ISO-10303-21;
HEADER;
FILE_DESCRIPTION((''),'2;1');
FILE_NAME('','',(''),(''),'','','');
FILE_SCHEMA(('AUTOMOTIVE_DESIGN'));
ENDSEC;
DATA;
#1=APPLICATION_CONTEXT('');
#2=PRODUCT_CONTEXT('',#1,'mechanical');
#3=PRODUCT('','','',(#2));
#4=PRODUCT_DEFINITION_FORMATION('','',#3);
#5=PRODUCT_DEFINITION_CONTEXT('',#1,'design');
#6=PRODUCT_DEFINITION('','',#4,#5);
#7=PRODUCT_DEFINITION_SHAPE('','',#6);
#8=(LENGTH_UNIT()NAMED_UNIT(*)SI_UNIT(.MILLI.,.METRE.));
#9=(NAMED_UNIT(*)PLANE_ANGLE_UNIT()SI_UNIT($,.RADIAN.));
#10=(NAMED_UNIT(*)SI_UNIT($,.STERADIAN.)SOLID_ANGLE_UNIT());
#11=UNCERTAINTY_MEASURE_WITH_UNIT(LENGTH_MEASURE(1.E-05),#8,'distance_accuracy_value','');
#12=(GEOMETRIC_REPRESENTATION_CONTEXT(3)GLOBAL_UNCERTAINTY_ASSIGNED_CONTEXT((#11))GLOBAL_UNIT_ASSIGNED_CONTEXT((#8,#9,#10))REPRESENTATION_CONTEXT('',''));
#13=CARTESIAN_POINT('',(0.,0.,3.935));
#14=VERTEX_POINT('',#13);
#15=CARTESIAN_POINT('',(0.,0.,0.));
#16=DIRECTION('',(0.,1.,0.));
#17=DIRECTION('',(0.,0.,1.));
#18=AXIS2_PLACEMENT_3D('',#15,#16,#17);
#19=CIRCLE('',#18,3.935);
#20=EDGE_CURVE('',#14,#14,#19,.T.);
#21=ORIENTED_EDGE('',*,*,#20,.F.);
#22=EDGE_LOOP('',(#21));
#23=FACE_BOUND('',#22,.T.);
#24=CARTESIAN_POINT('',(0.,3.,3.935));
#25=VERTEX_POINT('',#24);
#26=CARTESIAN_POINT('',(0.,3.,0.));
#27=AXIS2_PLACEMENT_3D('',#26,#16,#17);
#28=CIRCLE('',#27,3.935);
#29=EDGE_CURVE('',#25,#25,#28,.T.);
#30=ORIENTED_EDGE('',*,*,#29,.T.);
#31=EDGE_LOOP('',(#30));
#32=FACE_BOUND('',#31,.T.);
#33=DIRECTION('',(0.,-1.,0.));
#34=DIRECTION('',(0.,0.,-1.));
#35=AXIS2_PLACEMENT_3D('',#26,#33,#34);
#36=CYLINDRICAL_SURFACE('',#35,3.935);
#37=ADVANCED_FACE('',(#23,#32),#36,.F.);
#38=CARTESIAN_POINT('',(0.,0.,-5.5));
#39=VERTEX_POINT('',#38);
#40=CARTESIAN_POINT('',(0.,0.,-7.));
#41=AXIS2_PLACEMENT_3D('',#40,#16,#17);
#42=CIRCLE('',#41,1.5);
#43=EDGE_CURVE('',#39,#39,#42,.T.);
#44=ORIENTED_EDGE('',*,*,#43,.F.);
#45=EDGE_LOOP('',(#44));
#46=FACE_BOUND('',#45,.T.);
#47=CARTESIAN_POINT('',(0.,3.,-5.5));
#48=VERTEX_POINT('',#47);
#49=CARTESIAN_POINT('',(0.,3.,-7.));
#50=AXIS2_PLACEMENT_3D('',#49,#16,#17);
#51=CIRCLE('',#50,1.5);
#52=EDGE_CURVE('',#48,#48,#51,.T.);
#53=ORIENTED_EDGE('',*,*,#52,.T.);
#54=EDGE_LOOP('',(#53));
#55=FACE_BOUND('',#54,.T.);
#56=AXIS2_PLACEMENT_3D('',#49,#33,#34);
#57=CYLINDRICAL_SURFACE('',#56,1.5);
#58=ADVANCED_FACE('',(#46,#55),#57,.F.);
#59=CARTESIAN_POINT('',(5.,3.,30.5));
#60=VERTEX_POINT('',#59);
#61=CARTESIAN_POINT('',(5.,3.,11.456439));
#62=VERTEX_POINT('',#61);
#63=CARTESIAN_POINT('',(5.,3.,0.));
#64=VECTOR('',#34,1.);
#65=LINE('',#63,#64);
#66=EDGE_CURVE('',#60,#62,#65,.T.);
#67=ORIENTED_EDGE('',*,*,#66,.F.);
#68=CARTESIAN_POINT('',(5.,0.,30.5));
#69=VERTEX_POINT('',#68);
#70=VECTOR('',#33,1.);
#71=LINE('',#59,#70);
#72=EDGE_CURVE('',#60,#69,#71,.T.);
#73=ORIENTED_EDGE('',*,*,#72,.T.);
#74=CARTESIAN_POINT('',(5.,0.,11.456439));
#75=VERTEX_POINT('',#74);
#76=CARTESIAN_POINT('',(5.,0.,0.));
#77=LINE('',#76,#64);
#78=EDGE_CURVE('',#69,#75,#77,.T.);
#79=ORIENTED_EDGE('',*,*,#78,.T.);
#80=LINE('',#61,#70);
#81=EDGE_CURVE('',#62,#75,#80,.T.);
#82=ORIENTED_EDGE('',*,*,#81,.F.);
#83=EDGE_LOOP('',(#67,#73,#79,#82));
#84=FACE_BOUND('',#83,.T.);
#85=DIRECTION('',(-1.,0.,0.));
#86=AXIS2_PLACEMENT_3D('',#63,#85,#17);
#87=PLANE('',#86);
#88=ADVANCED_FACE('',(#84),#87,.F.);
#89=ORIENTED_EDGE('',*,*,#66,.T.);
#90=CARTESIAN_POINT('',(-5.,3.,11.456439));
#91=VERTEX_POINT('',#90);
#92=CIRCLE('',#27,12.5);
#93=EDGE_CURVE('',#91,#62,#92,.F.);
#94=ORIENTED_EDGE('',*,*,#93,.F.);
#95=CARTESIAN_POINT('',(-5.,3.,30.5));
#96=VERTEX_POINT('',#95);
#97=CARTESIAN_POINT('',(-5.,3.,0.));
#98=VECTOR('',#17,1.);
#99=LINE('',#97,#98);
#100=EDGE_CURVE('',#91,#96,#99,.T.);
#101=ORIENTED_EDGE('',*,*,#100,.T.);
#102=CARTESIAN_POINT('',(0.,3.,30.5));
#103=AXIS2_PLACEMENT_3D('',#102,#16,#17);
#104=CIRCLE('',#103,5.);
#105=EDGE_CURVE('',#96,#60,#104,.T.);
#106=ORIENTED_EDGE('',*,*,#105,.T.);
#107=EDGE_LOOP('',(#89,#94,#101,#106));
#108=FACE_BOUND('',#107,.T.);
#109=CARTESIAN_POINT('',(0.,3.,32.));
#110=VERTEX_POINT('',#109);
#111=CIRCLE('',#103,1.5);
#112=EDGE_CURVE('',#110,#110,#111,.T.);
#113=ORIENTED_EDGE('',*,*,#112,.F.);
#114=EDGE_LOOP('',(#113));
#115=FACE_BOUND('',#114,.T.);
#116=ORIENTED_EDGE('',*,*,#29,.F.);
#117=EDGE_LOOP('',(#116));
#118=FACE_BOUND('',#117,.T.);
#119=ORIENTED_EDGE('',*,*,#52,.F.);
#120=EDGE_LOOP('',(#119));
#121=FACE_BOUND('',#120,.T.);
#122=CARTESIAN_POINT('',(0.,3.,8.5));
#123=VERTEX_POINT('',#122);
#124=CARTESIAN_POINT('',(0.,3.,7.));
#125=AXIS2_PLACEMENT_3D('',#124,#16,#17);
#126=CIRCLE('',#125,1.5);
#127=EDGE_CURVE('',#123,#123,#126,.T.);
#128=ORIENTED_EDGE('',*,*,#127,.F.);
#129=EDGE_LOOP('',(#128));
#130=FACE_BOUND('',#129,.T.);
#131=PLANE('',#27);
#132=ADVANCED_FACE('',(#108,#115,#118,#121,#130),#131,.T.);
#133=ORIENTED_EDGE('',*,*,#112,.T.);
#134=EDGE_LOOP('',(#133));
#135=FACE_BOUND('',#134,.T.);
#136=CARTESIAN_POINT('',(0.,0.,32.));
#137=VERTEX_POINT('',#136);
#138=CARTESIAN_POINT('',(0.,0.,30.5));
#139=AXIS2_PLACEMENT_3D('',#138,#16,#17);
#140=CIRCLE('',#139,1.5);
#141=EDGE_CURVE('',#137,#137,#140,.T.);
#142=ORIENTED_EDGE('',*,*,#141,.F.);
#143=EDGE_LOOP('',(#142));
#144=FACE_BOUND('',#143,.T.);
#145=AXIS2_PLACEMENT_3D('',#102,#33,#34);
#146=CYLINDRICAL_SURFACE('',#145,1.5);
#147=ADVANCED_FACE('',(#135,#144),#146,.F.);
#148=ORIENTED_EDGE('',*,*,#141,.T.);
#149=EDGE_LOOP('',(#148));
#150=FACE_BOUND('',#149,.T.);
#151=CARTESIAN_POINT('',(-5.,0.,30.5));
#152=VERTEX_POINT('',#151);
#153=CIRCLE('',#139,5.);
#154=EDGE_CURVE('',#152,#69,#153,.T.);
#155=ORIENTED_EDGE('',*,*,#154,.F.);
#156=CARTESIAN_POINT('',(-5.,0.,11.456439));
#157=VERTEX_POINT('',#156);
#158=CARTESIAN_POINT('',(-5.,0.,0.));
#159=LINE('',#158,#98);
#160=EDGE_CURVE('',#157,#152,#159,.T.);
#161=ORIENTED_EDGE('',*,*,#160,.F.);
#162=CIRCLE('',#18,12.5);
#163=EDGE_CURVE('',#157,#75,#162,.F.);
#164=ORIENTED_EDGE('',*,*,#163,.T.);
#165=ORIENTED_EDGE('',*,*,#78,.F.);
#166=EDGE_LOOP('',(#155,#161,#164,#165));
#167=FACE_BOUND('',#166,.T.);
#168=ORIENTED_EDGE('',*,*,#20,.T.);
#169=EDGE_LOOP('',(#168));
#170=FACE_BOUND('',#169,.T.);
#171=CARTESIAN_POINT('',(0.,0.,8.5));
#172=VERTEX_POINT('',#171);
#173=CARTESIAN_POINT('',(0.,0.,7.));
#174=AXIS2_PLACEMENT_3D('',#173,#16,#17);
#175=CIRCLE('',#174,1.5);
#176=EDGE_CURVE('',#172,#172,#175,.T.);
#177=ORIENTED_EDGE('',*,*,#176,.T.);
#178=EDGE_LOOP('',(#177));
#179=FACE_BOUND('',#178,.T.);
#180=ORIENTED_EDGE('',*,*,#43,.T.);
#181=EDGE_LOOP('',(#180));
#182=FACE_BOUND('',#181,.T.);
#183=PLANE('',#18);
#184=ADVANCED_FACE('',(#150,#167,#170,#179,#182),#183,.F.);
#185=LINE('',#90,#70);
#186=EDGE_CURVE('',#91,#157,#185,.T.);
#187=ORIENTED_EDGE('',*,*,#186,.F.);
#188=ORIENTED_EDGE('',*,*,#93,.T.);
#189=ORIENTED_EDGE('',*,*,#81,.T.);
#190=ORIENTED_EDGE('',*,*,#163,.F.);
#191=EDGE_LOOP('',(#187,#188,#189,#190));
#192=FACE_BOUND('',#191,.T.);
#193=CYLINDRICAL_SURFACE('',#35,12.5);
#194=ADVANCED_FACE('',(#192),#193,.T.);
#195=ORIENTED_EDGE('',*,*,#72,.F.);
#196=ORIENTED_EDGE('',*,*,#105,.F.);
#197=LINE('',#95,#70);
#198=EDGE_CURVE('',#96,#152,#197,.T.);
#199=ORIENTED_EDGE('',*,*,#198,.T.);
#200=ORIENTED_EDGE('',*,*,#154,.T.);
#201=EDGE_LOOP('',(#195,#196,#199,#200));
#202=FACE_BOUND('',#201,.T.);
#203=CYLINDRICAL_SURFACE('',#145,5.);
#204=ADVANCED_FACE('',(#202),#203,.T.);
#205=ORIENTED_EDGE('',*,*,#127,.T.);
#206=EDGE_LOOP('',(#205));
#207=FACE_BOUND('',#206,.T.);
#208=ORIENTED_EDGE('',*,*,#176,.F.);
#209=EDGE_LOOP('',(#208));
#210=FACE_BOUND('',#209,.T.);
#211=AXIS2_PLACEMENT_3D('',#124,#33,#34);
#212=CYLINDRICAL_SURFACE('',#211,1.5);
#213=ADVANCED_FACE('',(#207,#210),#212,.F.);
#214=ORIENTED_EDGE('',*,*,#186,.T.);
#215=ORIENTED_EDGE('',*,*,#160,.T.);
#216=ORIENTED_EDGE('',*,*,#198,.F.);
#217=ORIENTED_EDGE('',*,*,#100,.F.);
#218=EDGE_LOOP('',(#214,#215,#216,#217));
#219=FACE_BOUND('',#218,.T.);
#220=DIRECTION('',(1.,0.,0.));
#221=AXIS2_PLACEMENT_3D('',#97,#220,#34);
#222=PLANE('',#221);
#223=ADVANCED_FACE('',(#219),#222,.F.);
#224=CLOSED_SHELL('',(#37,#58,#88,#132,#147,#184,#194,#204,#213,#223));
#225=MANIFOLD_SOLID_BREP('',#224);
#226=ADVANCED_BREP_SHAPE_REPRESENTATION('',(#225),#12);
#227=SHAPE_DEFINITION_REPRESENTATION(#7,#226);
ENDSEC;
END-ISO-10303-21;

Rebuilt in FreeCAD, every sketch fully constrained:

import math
import FreeCAD as App
import Part
import Sketcher

doc = App.newDocument("Part")
body = doc.addObject("PartDesign::Body", "Body")

# Sketch on XZ plane
sketch1 = doc.addObject("Sketcher::SketchObject", "Sketch")
body.addObject(sketch1)
sketch1.AttachmentSupport = (doc.XZ_Plane, [""])
sketch1.MapMode = "FlatFace"
sketch1.addGeometry([
    Part.LineSegment(App.Vector(-5, 11.5, 0), App.Vector(-5, 30.5, 0)),  # 0
    Part.ArcOfCircle(Part.Circle(App.Vector(0, 30.5, 0), App.Vector(0, 0, 1), 5), math.radians(0), math.radians(180)),  # 1
    Part.LineSegment(App.Vector(5, 30.5, 0), App.Vector(5, 11.5, 0)),  # 2
    Part.ArcOfCircle(Part.Circle(App.Vector(0, 0, 0), App.Vector(0, 0, 1), 12.5), math.radians(114), math.radians(426)),  # 3
    Part.Circle(App.Vector(0, 30.5, 0), App.Vector(0, 0, 1), 1.5),  # 4
    Part.Circle(App.Vector(0, 7, 0), App.Vector(0, 0, 1), 1.5),  # 5
    Part.Circle(App.Vector(0, 0, 0), App.Vector(0, 0, 1), 3.9),  # 6
    Part.Circle(App.Vector(0, -7, 0), App.Vector(0, 0, 1), 1.5),  # 7
], False)
sketch1.addConstraint([
    Sketcher.Constraint("Tangent", 0, 2, 1, 2),
    Sketcher.Constraint("Tangent", 1, 1, 2, 1),
    Sketcher.Constraint("Coincident", 2, 2, 3, 2),
    Sketcher.Constraint("Coincident", 3, 1, 0, 1),
    Sketcher.Constraint("Vertical", 0),
    Sketcher.Constraint("Vertical", 2),
    Sketcher.Constraint("Coincident", 3, 3, -1, 1),
    Sketcher.Constraint("Coincident", 6, 3, -1, 1),
    Sketcher.Constraint("Coincident", 4, 3, 1, 3),
    Sketcher.Constraint("Equal", 4, 5),
    Sketcher.Constraint("Equal", 5, 7),
    Sketcher.Constraint("Symmetric", 5, 3, 7, 3, -1, 1),
    Sketcher.Constraint("PointOnObject", 1, 3, -2),
    Sketcher.Constraint("PointOnObject", 5, 3, -2),
    Sketcher.Constraint("Diameter", 4, 3.0),
    Sketcher.Constraint("Radius", 1, 5.0),
    Sketcher.Constraint("Radius", 3, 12.5),
    Sketcher.Constraint("Diameter", 6, 7.87),
    Sketcher.Constraint("DistanceY", -1, 1, 5, 3, 7.0),
    Sketcher.Constraint("DistanceY", -1, 1, 1, 3, 30.5),
])
pad1 = doc.addObject("PartDesign::Pad", "Pad")
body.addObject(pad1)
pad1.Profile = sketch1
pad1.Length = 3
pad1.Reversed = True

doc.recompute()
